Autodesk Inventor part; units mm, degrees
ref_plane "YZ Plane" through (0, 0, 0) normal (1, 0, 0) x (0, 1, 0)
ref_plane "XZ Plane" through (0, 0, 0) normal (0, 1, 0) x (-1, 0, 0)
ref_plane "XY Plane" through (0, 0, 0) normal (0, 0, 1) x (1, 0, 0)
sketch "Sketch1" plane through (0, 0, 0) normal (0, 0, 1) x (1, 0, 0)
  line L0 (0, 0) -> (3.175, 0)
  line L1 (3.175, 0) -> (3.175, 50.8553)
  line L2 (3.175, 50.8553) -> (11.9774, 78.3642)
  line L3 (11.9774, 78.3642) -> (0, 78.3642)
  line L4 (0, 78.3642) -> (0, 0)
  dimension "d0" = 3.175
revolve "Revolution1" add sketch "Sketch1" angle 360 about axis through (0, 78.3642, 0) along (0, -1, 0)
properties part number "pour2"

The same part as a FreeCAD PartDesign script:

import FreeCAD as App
import Part
import Sketcher
from FreeCAD import Vector
Q = App.Units.Quantity

doc = App.newDocument("Part")
params = doc.addObject("Spreadsheet::Sheet", "Params")
for row, (alias, value) in enumerate([
    ("sketch1_width", "0.125 in"),
    ("revolution_angle", "360 deg"),
], start=1):
    params.set(f"A{row}", alias)
    params.set(f"B{row}", "=" + value)
    params.setAlias(f"B{row}", alias)

body = doc.addObject("PartDesign::Body", "Body")

# Sketch on XY plane
sketch1 = body.newObject("Sketcher::SketchObject", "Sketch")
sketch1.AttachmentSupport = (doc.getObject("XY_Plane"), [""])
sketch1.MapMode = "FlatFace"
sketch1.addGeometry(Part.LineSegment(Vector(0, 78.4, 0), Vector(0, 0, 0)), False)
sketch1.addGeometry(Part.LineSegment(Vector(0, 0, 0), Vector(3.2, 0, 0)), False)
sketch1.addGeometry(Part.LineSegment(Vector(3.2, 0, 0), Vector(3.2, 50.9, 0)), False)
sketch1.addGeometry(Part.LineSegment(Vector(3.2, 50.9, 0), Vector(12, 78.4, 0)), False)
sketch1.addGeometry(Part.LineSegment(Vector(12, 78.4, 0), Vector(0, 78.4, 0)), False)
sketch1.addConstraint(Sketcher.Constraint("Coincident", 0, 2, 1, 1))
sketch1.addConstraint(Sketcher.Constraint("Coincident", 1, 2, 2, 1))
sketch1.addConstraint(Sketcher.Constraint("Coincident", 2, 2, 3, 1))
sketch1.addConstraint(Sketcher.Constraint("Coincident", 3, 2, 4, 1))
sketch1.addConstraint(Sketcher.Constraint("Coincident", 4, 2, 0, 1))
sketch1.addConstraint(Sketcher.Constraint("Vertical", 0))
sketch1.addConstraint(Sketcher.Constraint("Horizontal", 1))
sketch1.addConstraint(Sketcher.Constraint("Vertical", 2))
sketch1.addConstraint(Sketcher.Constraint("Horizontal", 4))
sketch1.addConstraint(Sketcher.Constraint("Coincident", 0, 2, -1, 1))
sketch1.addConstraint(Sketcher.Constraint("DistanceX", 1, 1, 1, 2, Q("0.125 in")))
sketch1.addConstraint(Sketcher.Constraint("DistanceY", 0, 2, 0, 1, Q("3.0852 in")))
sketch1.addConstraint(Sketcher.Constraint("DistanceX", 4, 2, 4, 1, Q("11.9774 mm")))
sketch1.addConstraint(Sketcher.Constraint("DistanceY", 2, 1, 2, 2, Q("50.8553 mm")))
sketch1.setExpression("Constraints[10]", "Params.sketch1_width")
revolution = body.newObject("PartDesign::Revolution", "Revolution")
revolution.Profile = sketch1
revolution.ReferenceAxis = (sketch1, ["V_Axis"])
revolution.setExpression("Angle", "Params.revolution_angle")

doc.recompute()
